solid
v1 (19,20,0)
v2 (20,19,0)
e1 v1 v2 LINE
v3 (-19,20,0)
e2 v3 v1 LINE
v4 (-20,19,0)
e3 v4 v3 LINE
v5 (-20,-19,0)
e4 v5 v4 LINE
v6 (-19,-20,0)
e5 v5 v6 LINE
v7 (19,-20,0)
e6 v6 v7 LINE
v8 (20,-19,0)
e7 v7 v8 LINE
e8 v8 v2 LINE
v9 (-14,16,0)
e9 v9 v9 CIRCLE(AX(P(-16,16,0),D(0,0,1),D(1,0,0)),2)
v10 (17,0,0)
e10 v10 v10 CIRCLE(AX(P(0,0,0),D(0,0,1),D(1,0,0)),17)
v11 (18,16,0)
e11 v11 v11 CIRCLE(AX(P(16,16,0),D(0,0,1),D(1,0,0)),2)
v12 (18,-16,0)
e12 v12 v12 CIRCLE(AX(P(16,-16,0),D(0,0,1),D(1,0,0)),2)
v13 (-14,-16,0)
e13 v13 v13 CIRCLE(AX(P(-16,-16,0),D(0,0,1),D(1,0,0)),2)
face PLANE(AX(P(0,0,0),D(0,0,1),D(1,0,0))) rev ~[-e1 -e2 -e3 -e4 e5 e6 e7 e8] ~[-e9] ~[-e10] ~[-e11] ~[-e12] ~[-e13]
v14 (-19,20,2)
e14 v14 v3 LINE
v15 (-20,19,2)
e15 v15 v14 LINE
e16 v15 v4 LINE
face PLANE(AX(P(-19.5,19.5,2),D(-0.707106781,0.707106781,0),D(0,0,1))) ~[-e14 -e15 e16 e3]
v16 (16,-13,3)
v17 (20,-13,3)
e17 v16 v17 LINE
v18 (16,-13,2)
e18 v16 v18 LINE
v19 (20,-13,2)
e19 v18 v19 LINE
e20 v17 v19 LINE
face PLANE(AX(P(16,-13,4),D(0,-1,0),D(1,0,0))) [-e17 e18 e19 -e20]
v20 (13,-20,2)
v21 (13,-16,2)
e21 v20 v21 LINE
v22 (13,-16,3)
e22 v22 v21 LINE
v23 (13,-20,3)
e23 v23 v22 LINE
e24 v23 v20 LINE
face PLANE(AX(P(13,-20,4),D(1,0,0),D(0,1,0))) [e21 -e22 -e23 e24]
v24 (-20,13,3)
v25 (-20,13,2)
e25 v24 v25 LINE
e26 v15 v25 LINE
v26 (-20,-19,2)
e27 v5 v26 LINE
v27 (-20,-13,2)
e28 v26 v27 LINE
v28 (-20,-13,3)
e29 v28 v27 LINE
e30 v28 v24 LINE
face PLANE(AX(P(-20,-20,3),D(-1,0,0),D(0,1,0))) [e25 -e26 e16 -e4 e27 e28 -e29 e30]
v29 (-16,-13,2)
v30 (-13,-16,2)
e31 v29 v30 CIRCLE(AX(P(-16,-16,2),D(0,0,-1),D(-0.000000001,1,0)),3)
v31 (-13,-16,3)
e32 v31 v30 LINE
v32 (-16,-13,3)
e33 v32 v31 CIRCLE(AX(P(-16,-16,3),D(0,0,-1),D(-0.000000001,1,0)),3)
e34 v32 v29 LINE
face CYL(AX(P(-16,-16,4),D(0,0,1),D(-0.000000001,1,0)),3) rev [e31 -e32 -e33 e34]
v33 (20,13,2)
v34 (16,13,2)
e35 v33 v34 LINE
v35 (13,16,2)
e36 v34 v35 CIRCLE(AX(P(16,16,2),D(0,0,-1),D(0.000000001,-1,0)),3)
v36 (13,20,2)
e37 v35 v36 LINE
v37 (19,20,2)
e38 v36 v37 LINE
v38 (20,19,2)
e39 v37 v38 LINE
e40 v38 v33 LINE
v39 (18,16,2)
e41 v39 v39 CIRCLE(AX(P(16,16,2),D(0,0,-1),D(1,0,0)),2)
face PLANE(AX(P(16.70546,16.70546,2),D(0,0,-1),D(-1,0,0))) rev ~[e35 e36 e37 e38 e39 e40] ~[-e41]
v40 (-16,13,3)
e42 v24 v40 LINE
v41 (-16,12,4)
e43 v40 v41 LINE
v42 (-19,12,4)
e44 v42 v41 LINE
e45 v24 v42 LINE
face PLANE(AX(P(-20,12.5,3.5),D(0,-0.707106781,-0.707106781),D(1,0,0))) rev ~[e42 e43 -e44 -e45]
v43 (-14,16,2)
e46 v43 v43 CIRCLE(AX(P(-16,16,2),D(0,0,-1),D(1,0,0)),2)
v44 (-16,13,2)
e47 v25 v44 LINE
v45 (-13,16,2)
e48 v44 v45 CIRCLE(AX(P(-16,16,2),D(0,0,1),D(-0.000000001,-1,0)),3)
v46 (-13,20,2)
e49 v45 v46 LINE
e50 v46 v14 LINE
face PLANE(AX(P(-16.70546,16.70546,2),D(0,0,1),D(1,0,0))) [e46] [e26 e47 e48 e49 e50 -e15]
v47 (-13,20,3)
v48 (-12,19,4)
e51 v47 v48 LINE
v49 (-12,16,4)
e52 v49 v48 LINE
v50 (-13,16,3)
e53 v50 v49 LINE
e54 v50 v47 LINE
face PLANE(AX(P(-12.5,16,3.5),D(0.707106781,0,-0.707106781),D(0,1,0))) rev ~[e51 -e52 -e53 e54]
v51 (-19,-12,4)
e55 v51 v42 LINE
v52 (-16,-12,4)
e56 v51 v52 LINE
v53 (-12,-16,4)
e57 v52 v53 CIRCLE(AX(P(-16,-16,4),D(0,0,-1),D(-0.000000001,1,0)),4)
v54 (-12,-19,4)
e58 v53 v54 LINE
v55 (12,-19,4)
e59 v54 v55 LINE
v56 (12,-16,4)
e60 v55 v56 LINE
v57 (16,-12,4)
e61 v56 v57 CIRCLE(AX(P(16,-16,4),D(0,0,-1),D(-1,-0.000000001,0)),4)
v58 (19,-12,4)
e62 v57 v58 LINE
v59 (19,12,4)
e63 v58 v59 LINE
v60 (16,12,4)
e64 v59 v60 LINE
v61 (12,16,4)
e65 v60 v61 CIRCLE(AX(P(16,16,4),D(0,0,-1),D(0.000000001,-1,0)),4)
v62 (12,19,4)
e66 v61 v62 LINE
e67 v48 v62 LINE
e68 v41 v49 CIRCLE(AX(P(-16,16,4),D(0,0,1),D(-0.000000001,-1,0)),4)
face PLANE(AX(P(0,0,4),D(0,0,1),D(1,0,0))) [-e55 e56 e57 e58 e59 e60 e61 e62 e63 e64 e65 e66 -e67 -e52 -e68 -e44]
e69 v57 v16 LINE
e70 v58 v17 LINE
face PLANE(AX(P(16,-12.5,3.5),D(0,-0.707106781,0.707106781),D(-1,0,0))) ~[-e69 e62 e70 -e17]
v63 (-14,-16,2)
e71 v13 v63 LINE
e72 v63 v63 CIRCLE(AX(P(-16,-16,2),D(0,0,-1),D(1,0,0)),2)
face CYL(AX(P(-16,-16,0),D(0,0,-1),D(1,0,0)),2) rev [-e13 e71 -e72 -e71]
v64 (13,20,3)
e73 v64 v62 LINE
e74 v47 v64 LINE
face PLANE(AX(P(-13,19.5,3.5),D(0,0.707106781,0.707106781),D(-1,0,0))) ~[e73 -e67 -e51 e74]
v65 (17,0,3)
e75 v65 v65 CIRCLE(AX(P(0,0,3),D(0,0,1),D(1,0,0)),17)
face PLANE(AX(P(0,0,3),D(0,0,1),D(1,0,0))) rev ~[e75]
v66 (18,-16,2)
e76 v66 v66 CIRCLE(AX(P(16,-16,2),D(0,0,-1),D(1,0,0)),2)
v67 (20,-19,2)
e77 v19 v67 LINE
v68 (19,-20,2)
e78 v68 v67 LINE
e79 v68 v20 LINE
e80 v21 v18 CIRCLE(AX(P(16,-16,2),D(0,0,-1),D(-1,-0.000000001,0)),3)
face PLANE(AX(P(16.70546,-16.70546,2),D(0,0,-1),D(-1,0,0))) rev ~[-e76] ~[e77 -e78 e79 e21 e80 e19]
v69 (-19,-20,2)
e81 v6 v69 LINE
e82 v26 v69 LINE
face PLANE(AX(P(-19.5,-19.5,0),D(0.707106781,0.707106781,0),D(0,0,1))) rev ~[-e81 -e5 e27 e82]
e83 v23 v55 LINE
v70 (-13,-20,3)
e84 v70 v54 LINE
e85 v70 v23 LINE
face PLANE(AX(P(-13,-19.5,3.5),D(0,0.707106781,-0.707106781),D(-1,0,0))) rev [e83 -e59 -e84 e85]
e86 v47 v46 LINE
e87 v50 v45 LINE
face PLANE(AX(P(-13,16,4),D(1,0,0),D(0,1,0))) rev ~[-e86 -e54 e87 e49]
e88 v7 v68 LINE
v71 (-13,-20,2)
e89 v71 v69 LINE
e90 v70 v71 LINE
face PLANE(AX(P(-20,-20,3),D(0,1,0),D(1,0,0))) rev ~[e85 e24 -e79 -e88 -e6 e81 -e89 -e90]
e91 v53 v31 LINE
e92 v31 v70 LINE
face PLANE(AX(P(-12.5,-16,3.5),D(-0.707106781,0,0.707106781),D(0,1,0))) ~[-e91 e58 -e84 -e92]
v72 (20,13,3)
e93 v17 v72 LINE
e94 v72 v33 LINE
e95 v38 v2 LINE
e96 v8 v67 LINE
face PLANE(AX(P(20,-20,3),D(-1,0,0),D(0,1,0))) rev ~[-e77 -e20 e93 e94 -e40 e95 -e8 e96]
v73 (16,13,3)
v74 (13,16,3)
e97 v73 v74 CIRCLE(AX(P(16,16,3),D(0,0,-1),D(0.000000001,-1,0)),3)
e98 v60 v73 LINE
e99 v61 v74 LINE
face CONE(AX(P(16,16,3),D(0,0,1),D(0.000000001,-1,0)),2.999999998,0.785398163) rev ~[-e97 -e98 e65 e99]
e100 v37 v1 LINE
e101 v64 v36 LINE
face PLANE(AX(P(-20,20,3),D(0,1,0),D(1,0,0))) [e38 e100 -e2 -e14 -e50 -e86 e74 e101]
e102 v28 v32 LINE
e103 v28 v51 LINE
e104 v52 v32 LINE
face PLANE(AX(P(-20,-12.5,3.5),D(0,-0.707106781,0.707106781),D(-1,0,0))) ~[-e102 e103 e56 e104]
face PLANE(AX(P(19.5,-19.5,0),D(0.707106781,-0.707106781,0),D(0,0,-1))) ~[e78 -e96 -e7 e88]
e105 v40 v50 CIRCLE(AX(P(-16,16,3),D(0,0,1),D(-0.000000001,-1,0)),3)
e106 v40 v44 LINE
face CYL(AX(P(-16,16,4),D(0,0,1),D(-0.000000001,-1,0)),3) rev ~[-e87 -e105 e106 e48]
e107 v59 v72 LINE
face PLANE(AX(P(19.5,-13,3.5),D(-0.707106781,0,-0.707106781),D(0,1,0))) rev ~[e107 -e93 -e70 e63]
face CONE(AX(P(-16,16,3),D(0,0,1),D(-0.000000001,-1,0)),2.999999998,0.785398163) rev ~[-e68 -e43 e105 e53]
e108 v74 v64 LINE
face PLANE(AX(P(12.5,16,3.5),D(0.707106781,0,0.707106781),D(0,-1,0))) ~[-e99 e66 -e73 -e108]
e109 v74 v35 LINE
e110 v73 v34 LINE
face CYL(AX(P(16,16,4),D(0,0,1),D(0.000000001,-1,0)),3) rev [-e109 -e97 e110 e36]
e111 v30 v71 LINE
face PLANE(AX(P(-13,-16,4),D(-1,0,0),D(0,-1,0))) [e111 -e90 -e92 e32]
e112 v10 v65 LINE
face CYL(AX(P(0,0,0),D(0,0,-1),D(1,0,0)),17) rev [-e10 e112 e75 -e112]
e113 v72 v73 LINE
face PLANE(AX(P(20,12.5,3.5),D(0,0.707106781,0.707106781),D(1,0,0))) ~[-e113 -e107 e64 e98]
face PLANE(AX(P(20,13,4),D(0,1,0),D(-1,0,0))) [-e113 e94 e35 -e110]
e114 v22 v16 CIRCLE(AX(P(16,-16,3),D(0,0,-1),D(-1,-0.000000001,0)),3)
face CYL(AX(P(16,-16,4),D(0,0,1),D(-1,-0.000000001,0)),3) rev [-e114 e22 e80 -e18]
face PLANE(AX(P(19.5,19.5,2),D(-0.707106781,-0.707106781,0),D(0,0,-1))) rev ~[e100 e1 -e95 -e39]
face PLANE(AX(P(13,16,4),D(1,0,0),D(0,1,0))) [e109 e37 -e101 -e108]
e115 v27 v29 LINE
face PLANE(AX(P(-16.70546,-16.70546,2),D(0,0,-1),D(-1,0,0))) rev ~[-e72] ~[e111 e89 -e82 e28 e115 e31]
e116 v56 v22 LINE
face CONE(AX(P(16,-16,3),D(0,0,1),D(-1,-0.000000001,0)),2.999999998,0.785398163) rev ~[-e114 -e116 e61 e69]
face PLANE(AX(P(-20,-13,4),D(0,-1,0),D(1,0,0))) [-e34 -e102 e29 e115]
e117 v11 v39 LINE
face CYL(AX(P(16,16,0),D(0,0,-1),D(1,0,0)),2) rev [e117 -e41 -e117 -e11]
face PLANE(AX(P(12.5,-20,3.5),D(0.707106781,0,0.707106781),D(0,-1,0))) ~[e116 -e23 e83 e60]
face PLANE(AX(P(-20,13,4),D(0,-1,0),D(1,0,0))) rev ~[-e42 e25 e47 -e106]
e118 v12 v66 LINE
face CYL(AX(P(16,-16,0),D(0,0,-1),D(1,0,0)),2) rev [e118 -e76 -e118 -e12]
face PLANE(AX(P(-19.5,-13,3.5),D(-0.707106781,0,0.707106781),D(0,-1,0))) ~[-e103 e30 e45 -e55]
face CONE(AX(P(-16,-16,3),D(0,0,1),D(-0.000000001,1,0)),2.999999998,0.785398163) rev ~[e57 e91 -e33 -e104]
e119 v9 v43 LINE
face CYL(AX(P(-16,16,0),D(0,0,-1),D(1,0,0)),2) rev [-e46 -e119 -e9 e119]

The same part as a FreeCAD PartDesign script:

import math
import FreeCAD as App
import Part
import Sketcher
from FreeCAD import Vector
Q = App.Units.Quantity


def edges_at(feature, points):
    """Names of the edges that pass closest to the given points."""
    edges = feature.Shape.Edges
    near = lambda p: min(range(len(edges)), key=lambda i: edges[i].distToShape(Part.Vertex(*p))[0])
    return sorted({f"Edge{near(p) + 1}" for p in points})


def add_polygon(sketch, points):
    """Adds a closed chain of lines whose ends are joined by coincident constraints."""
    first, n = sketch.GeometryCount, len(points)
    for a, b in zip(points, points[1:] + points[:1]):
        sketch.addGeometry(Part.LineSegment(App.Vector(*a, 0), App.Vector(*b, 0)), False)
    for i in range(n):
        sketch.addConstraint(Sketcher.Constraint("Coincident", first + i, 2, first + (i + 1) % n, 1))

doc = App.newDocument("Part")
body = doc.addObject("PartDesign::Body", "Body")

# Sketch on XY plane
sketch1 = doc.addObject("Sketcher::SketchObject", "Sketch")
body.addObject(sketch1)
sketch1.AttachmentSupport = (doc.XY_Plane, [""])
sketch1.MapMode = "FlatFace"
add_polygon(sketch1, [(-20, 20), (-20, -20), (20, -20), (20, 20)])  # lines 0-3
sketch1.addGeometry(Part.Circle(Vector(-16, -16, 0), Vector(0, 0, 1), 2), False)  # 4
sketch1.addGeometry(Part.Circle(Vector(16, -16, 0), Vector(0, 0, 1), 2), False)  # 5
sketch1.addGeometry(Part.Circle(Vector(-16, 16, 0), Vector(0, 0, 1), 2), False)  # 6
sketch1.addGeometry(Part.Circle(Vector(0, 0, 0), Vector(0, 0, 1), 17), False)  # 7
sketch1.addGeometry(Part.Circle(Vector(16, 16, 0), Vector(0, 0, 1), 2), False)  # 8
sketch1.addConstraint([
    Sketcher.Constraint("Vertical", 0),
    Sketcher.Constraint("Horizontal", 1),
    Sketcher.Constraint("Vertical", 2),
    Sketcher.Constraint("Horizontal", 3),
    Sketcher.Constraint("Coincident", 7, 3, -1, 1),
    Sketcher.Constraint("Equal", 4, 5),
    Sketcher.Constraint("Equal", 5, 6),
    Sketcher.Constraint("Equal", 6, 8),
    Sketcher.Constraint("Symmetric", 5, 3, 6, 3, -1, 1),
    Sketcher.Constraint("Symmetric", 4, 3, 8, 3, -1, 1),
    Sketcher.Constraint("Symmetric", 0, 2, 2, 2, -1, 1),
    Sketcher.Constraint("Symmetric", 4, 3, 5, 3, -2),
    Sketcher.Constraint("Equal", 3, 0),
    Sketcher.Constraint("Diameter", 4, Q("4 mm")),
    Sketcher.Constraint("Diameter", 7, Q("34 mm")),
    Sketcher.Constraint("DistanceX", 1, 1, 1, 2, Q("40 mm")),
    Sketcher.Constraint("DistanceX", 4, 3, -1, 1, Q("16 mm")),
    Sketcher.Constraint("DistanceY", 4, 3, -1, 1, Q("16 mm")),
])
pad1 = doc.addObject("PartDesign::Pad", "Pad")
body.addObject(pad1)
pad1.Profile = sketch1
pad1.Length = 3

# Sketch on XY plane
sketch2 = doc.addObject("Sketcher::SketchObject", "Sketch001")
body.addObject(sketch2)
sketch2.AttachmentSupport = (doc.XY_Plane, [""])
sketch2.MapMode = "FlatFace"
sketch2.AttachmentOffset = App.Placement(Vector(0, 0, 3), App.Rotation())
add_polygon(sketch2, [(-20, 20), (-20, -20), (20, -20), (20, 20)])  # lines 0-3
sketch2.addConstraint([
    Sketcher.Constraint("Vertical", 0),
    Sketcher.Constraint("Horizontal", 1),
    Sketcher.Constraint("Vertical", 2),
    Sketcher.Constraint("Horizontal", 3),
    Sketcher.Constraint("Symmetric", 0, 2, 2, 2, -1, 1),
    Sketcher.Constraint("Equal", 3, 0),
    Sketcher.Constraint("DistanceX", 1, 1, 1, 2, Q("40 mm")),
])
pad2 = doc.addObject("PartDesign::Pad", "Pad001")
body.addObject(pad2)
pad2.Profile = sketch2
pad2.Length = 1

# Sketch on XY plane
sketch3 = doc.addObject("Sketcher::SketchObject", "Sketch002")
body.addObject(sketch3)
sketch3.AttachmentSupport = (doc.XY_Plane, [""])
sketch3.MapMode = "FlatFace"
sketch3.AttachmentOffset = App.Placement(Vector(0, 0, 4), App.Rotation())
sketch3.addGeometry([
    Part.LineSegment(Vector(13, 20, 0), Vector(13, 16, 0)),  # 0
    Part.ArcOfCircle(Part.Circle(Vector(16, 16, 0), Vector(0, 0, 1), 3), math.radians(180), math.radians(270)),  # 1
    Part.LineSegment(Vector(16, 13, 0), Vector(20, 13, 0)),  # 2
    Part.LineSegment(Vector(20, 13, 0), Vector(20, 20, 0)),  # 3
    Part.LineSegment(Vector(20, 20, 0), Vector(13, 20, 0)),  # 4
    Part.LineSegment(Vector(-13, 16, 0), Vector(-13, 20, 0)),  # 5
    Part.LineSegment(Vector(-13, 20, 0), Vector(-20, 20, 0)),  # 6
    Part.LineSegment(Vector(-20, 20, 0), Vector(-20, 13, 0)),  # 7
    Part.LineSegment(Vector(-20, 13, 0), Vector(-16, 13, 0)),  # 8
    Part.ArcOfCircle(Part.Circle(Vector(-16, 16, 0), Vector(0, 0, 1), 3), math.radians(-90), math.radians(0)),  # 9
    Part.LineSegment(Vector(20, -13, 0), Vector(16, -13, 0)),  # 10
    Part.ArcOfCircle(Part.Circle(Vector(16, -16, 0), Vector(0, 0, 1), 3), math.radians(90), math.radians(180)),  # 11
    Part.LineSegment(Vector(13, -16, 0), Vector(13, -20, 0)),  # 12
    Part.LineSegment(Vector(13, -20, 0), Vector(20, -20, 0)),  # 13
    Part.LineSegment(Vector(20, -20, 0), Vector(20, -13, 0)),  # 14
    Part.LineSegment(Vector(-13, -20, 0), Vector(-13, -16, 0)),  # 15
    Part.ArcOfCircle(Part.Circle(Vector(-16, -16, 0), Vector(0, 0, 1), 3), math.radians(0), math.radians(90)),  # 16
    Part.LineSegment(Vector(-16, -13, 0), Vector(-20, -13, 0)),  # 17
    Part.LineSegment(Vector(-20, -13, 0), Vector(-20, -20, 0)),  # 18
    Part.LineSegment(Vector(-20, -20, 0), Vector(-13, -20, 0)),  # 19
], False)
sketch3.addConstraint([
    Sketcher.Constraint("Tangent", 0, 2, 1, 1),
    Sketcher.Constraint("Tangent", 1, 2, 2, 1),
    Sketcher.Constraint("Coincident", 2, 2, 3, 1),
    Sketcher.Constraint("Coincident", 3, 2, 4, 1),
    Sketcher.Constraint("Coincident", 4, 2, 0, 1),
    Sketcher.Constraint("Coincident", 5, 2, 6, 1),
    Sketcher.Constraint("Coincident", 6, 2, 7, 1),
    Sketcher.Constraint("Coincident", 7, 2, 8, 1),
    Sketcher.Constraint("Tangent", 8, 2, 9, 1),
    Sketcher.Constraint("Tangent", 9, 2, 5, 1),
    Sketcher.Constraint("Tangent", 10, 2, 11, 1),
    Sketcher.Constraint("Tangent", 11, 2, 12, 1),
    Sketcher.Constraint("Coincident", 12, 2, 13, 1),
    Sketcher.Constraint("Coincident", 13, 2, 14, 1),
    Sketcher.Constraint("Coincident", 14, 2, 10, 1),
    Sketcher.Constraint("Tangent", 15, 2, 16, 1),
    Sketcher.Constraint("Tangent", 16, 2, 17, 1),
    Sketcher.Constraint("Coincident", 17, 2, 18, 1),
    Sketcher.Constraint("Coincident", 18, 2, 19, 1),
    Sketcher.Constraint("Coincident", 19, 2, 15, 1),
    Sketcher.Constraint("Vertical", 0),
    Sketcher.Constraint("Horizontal", 2),
    Sketcher.Constraint("Vertical", 3),
    Sketcher.Constraint("Horizontal", 4),
    Sketcher.Constraint("Vertical", 5),
    Sketcher.Constraint("Horizontal", 6),
    Sketcher.Constraint("Vertical", 7),
    Sketcher.Constraint("Horizontal", 8),
    Sketcher.Constraint("Horizontal", 10),
    Sketcher.Constraint("Vertical", 12),
    Sketcher.Constraint("Horizontal", 13),
    Sketcher.Constraint("Vertical", 14),
    Sketcher.Constraint("Vertical", 15),
    Sketcher.Constraint("Horizontal", 17),
    Sketcher.Constraint("Vertical", 18),
    Sketcher.Constraint("Horizontal", 19),
    Sketcher.Constraint("Equal", 1, 9),
    Sketcher.Constraint("Equal", 9, 11),
    Sketcher.Constraint("Equal", 11, 16),
    Sketcher.Constraint("Symmetric", 9, 3, 11, 3, -1, 1),
    Sketcher.Constraint("Symmetric", 1, 3, 16, 3, -1, 1),
    Sketcher.Constraint("Symmetric", 6, 2, 13, 2, -1, 1),
    Sketcher.Constraint("Symmetric", 3, 2, 18, 2, -1, 1),
    Sketcher.Constraint("Symmetric", 1, 3, 9, 3, -2),
    Sketcher.Constraint("Symmetric", 3, 2, 6, 2, -2),
    Sketcher.Constraint("Equal", 17, 0),
    Sketcher.Constraint("Radius", 1, Q("3 mm")),
    Sketcher.Constraint("DistanceX", 2, 1, 2, 2, Q("4 mm")),
    Sketcher.Constraint("DistanceX", -1, 1, 1, 3, Q("16 mm")),
    Sketcher.Constraint("DistanceY", -1, 1, 1, 3, Q("16 mm")),
])
pocket1 = doc.addObject("PartDesign::Pocket", "Pocket")
body.addObject(pocket1)
pocket1.Profile = sketch3
pocket1.Length = 2
doc.recompute()

chamfer = doc.addObject("PartDesign::Chamfer", "Chamfer")
body.addObject(chamfer)
chamfer.Base = (pocket1, edges_at(pocket1, [
    (-20, 0, 4),
    (0, -20, 4),
    (20, 0, 4),
    (0, 20, 4),
    (20, -20, 1),
    (-20, -20, 1),
    (-20, 20, 1),
    (20, 20, 1),
    (-13.879, -13.879, 4),
    (-18, -13, 4),
    (-13, -18, 4),
    (13.879, -13.879, 4),
    (13, -18, 4),
    (18, -13, 4),
    (13.879, 13.879, 4),
    (18, 13, 4),
    (13, 18, 4),
    (-18, 13, 4),
    (-13.879, 13.879, 4),
    (-13, 18, 4),
]))
chamfer.Size = 1

doc.recompute()
